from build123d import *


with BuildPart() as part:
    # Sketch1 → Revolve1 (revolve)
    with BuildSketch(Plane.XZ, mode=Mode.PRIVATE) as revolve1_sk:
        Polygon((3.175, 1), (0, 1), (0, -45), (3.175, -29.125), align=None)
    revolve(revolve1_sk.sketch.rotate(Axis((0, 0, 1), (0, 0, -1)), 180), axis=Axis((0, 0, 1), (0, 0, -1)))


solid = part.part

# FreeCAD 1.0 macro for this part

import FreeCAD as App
import Part
import Sketcher
Q = App.Units.Quantity


def add_polygon(sketch, points):
    """Adds a closed chain of lines whose ends are joined by coincident constraints."""
    first, n = sketch.GeometryCount, len(points)
    for a, b in zip(points, points[1:] + points[:1]):
        sketch.addGeometry(Part.LineSegment(App.Vector(*a, 0), App.Vector(*b, 0)), False)
    for i in range(n):
        sketch.addConstraint(Sketcher.Constraint("Coincident", first + i, 2, first + (i + 1) % n, 1))

doc = App.newDocument("Part")
body = doc.addObject("PartDesign::Body", "Body")

# Sketch on XZ plane
sketch1 = body.newObject("Sketcher::SketchObject", "Sketch")
sketch1.AttachmentSupport = (doc.getObject("XZ_Plane"), [""])
sketch1.MapMode = "FlatFace"
add_polygon(sketch1, [(3.2, 1), (0, 1), (0, -45), (3.2, -29.1)])  # lines 0-3
sketch1.addConstraint(Sketcher.Constraint("Horizontal", 0))
sketch1.addConstraint(Sketcher.Constraint("Vertical", 1))
sketch1.addConstraint(Sketcher.Constraint("Vertical", 3))
sketch1.addConstraint(Sketcher.Constraint("PointOnObject", 0, 2, -2))
sketch1.addConstraint(Sketcher.Constraint("DistanceY", 1, 2, 1, 1, Q("46 mm")))
sketch1.addConstraint(Sketcher.Constraint("DistanceY", -1, 1, 0, 2, Q("1 mm")))
sketch1.addConstraint(Sketcher.Constraint("DistanceX", 0, 2, 0, 1, Q("3.175 mm")))
sketch1.addConstraint(Sketcher.Constraint("DistanceY", 3, 1, 3, 2, Q("30.125 mm")))
revolution = body.newObject("PartDesign::Revolution", "Revolution")
revolution.Profile = sketch1
revolution.ReferenceAxis = (sketch1, ["V_Axis"])
revolution.Angle = 360

doc.recompute()
